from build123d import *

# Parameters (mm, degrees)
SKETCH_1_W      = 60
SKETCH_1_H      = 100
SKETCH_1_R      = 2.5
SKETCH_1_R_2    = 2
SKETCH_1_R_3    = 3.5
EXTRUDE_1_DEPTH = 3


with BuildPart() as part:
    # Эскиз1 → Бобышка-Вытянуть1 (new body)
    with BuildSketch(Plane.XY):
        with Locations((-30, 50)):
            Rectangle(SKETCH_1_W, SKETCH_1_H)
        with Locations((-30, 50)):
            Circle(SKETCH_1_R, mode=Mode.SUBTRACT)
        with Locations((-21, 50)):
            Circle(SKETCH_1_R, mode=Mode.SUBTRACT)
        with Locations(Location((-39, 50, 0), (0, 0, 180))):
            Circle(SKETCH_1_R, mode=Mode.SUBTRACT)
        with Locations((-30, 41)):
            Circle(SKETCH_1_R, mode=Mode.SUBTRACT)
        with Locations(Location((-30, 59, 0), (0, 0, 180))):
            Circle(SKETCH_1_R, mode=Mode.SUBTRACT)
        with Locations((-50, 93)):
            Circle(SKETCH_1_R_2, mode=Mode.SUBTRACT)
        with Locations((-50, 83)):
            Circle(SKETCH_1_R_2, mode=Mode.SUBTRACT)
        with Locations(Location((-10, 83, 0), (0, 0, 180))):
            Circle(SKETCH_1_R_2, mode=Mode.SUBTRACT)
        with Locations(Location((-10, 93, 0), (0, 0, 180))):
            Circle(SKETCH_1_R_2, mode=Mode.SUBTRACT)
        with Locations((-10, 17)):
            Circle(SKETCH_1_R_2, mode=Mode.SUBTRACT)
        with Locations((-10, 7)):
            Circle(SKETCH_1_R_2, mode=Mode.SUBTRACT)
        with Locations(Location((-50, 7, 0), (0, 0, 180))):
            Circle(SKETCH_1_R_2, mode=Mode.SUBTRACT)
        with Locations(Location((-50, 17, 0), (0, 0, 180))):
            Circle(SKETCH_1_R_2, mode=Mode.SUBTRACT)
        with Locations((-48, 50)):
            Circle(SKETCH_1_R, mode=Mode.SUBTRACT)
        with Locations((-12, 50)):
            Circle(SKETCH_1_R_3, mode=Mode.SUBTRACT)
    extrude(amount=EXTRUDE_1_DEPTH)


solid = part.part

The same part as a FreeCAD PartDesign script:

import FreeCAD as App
import Part
import Sketcher
from FreeCAD import Vector
Q = App.Units.Quantity

doc = App.newDocument("Part")
body = doc.addObject("PartDesign::Body", "Body")

# Sketch on XY plane
sketch1 = body.newObject("Sketcher::SketchObject", "Sketch")
sketch1.AttachmentSupport = (doc.getObject("XY_Plane"), [""])
sketch1.MapMode = "FlatFace"
sketch1.addGeometry([
    Part.LineSegment(Vector(-60, 100, 0), Vector(-60, 0, 0)),  # 0
    Part.LineSegment(Vector(-60, 0, 0), Vector(0, 0, 0)),  # 1
    Part.LineSegment(Vector(0, 0, 0), Vector(0, 100, 0)),  # 2
    Part.LineSegment(Vector(0, 100, 0), Vector(-60, 100, 0)),  # 3
    Part.Circle(Vector(-50, 7, 0), Vector(0, 0, 1), 2),  # 4
    Part.Circle(Vector(-50, 17, 0), Vector(0, 0, 1), 2),  # 5
    Part.Circle(Vector(-10, 7, 0), Vector(0, 0, 1), 2),  # 6
    Part.Circle(Vector(-10, 17, 0), Vector(0, 0, 1), 2),  # 7
    Part.Circle(Vector(-30, 41, 0), Vector(0, 0, 1), 2.5),  # 8
    Part.Circle(Vector(-48, 50, 0), Vector(0, 0, 1), 2.5),  # 9
    Part.Circle(Vector(-39, 50, 0), Vector(0, 0, 1), 2.5),  # 10
    Part.Circle(Vector(-50, 83, 0), Vector(0, 0, 1), 2),  # 11
    Part.Circle(Vector(-50, 93, 0), Vector(0, 0, 1), 2),  # 12
    Part.Circle(Vector(-30, 50, 0), Vector(0, 0, 1), 2.5),  # 13
    Part.Circle(Vector(-30, 59, 0), Vector(0, 0, 1), 2.5),  # 14
    Part.Circle(Vector(-21, 50, 0), Vector(0, 0, 1), 2.5),  # 15
    Part.Circle(Vector(-12, 50, 0), Vector(0, 0, 1), 3.5),  # 16
    Part.Circle(Vector(-10, 83, 0), Vector(0, 0, 1), 2),  # 17
    Part.Circle(Vector(-10, 93, 0), Vector(0, 0, 1), 2),  # 18
], False)
sketch1.addConstraint([
    Sketcher.Constraint("Coincident", 0, 2, 1, 1),
    Sketcher.Constraint("Coincident", 1, 2, 2, 1),
    Sketcher.Constraint("Coincident", 2, 2, 3, 1),
    Sketcher.Constraint("Coincident", 3, 2, 0, 1),
    Sketcher.Constraint("Vertical", 0),
    Sketcher.Constraint("Horizontal", 1),
    Sketcher.Constraint("Vertical", 2),
    Sketcher.Constraint("Horizontal", 3),
    Sketcher.Constraint("Coincident", 1, 2, -1, 1),
    Sketcher.Constraint("Equal", 4, 5),
    Sketcher.Constraint("Equal", 5, 6),
    Sketcher.Constraint("Equal", 6, 7),
    Sketcher.Constraint("Equal", 8, 9),
    Sketcher.Constraint("Equal", 9, 10),
    Sketcher.Constraint("Equal", 7, 11),
    Sketcher.Constraint("Equal", 11, 12),
    Sketcher.Constraint("Equal", 10, 13),
    Sketcher.Constraint("Equal", 13, 14),
    Sketcher.Constraint("Equal", 14, 15),
    Sketcher.Constraint("Equal", 12, 17),
    Sketcher.Constraint("Equal", 17, 18),
    Sketcher.Constraint("Horizontal", 4, 3, 6, 3),
    Sketcher.Constraint("Horizontal", 5, 3, 7, 3),
    Sketcher.Constraint("Horizontal", 9, 3, 10, 3),
    Sketcher.Constraint("Horizontal", 10, 3, 13, 3),
    Sketcher.Constraint("Horizontal", 13, 3, 15, 3),
    Sketcher.Constraint("Horizontal", 15, 3, 16, 3),
    Sketcher.Constraint("Horizontal", 11, 3, 17, 3),
    Sketcher.Constraint("Horizontal", 12, 3, 18, 3),
    Sketcher.Constraint("Vertical", 4, 3, 5, 3),
    Sketcher.Constraint("Vertical", 6, 3, 7, 3),
    Sketcher.Constraint("Vertical", 5, 3, 11, 3),
    Sketcher.Constraint("Vertical", 11, 3, 12, 3),
    Sketcher.Constraint("Vertical", 8, 3, 13, 3),
    Sketcher.Constraint("Vertical", 13, 3, 14, 3),
    Sketcher.Constraint("Vertical", 7, 3, 17, 3),
    Sketcher.Constraint("Vertical", 17, 3, 18, 3),
    Sketcher.Constraint("Diameter", 4, Q("4 mm")),
    Sketcher.Constraint("Diameter", 8, Q("5 mm")),
    Sketcher.Constraint("Diameter", 16, Q("7 mm")),
    Sketcher.Constraint("DistanceX", 1, 1, 1, 2, Q("60 mm")),
    Sketcher.Constraint("DistanceY", 0, 2, 0, 1, Q("100 mm")),
    Sketcher.Constraint("DistanceX", 4, 3, -1, 1, Q("50 mm")),
    Sketcher.Constraint("DistanceY", -1, 1, 4, 3, Q("7 mm")),
    Sketcher.Constraint("DistanceY", -1, 1, 5, 3, Q("17 mm")),
    Sketcher.Constraint("DistanceX", 6, 3, -1, 1, Q("10 mm")),
    Sketcher.Constraint("DistanceX", 8, 3, -1, 1, Q("30 mm")),
    Sketcher.Constraint("DistanceY", -1, 1, 8, 3, Q("41 mm")),
    Sketcher.Constraint("DistanceX", 9, 3, -1, 1, Q("48 mm")),
    Sketcher.Constraint("DistanceY", -1, 1, 9, 3, Q("50 mm")),
    Sketcher.Constraint("DistanceX", 10, 3, -1, 1, Q("39 mm")),
    Sketcher.Constraint("DistanceY", -1, 1, 11, 3, Q("83 mm")),
    Sketcher.Constraint("DistanceY", -1, 1, 12, 3, Q("93 mm")),
    Sketcher.Constraint("DistanceY", -1, 1, 14, 3, Q("59 mm")),
    Sketcher.Constraint("DistanceX", 15, 3, -1, 1, Q("21 mm")),
    Sketcher.Constraint("DistanceX", 16, 3, -1, 1, Q("12 mm")),
])
pad1 = body.newObject("PartDesign::Pad", "Pad")
pad1.Profile = sketch1
pad1.Length = 3

doc.recompute()
